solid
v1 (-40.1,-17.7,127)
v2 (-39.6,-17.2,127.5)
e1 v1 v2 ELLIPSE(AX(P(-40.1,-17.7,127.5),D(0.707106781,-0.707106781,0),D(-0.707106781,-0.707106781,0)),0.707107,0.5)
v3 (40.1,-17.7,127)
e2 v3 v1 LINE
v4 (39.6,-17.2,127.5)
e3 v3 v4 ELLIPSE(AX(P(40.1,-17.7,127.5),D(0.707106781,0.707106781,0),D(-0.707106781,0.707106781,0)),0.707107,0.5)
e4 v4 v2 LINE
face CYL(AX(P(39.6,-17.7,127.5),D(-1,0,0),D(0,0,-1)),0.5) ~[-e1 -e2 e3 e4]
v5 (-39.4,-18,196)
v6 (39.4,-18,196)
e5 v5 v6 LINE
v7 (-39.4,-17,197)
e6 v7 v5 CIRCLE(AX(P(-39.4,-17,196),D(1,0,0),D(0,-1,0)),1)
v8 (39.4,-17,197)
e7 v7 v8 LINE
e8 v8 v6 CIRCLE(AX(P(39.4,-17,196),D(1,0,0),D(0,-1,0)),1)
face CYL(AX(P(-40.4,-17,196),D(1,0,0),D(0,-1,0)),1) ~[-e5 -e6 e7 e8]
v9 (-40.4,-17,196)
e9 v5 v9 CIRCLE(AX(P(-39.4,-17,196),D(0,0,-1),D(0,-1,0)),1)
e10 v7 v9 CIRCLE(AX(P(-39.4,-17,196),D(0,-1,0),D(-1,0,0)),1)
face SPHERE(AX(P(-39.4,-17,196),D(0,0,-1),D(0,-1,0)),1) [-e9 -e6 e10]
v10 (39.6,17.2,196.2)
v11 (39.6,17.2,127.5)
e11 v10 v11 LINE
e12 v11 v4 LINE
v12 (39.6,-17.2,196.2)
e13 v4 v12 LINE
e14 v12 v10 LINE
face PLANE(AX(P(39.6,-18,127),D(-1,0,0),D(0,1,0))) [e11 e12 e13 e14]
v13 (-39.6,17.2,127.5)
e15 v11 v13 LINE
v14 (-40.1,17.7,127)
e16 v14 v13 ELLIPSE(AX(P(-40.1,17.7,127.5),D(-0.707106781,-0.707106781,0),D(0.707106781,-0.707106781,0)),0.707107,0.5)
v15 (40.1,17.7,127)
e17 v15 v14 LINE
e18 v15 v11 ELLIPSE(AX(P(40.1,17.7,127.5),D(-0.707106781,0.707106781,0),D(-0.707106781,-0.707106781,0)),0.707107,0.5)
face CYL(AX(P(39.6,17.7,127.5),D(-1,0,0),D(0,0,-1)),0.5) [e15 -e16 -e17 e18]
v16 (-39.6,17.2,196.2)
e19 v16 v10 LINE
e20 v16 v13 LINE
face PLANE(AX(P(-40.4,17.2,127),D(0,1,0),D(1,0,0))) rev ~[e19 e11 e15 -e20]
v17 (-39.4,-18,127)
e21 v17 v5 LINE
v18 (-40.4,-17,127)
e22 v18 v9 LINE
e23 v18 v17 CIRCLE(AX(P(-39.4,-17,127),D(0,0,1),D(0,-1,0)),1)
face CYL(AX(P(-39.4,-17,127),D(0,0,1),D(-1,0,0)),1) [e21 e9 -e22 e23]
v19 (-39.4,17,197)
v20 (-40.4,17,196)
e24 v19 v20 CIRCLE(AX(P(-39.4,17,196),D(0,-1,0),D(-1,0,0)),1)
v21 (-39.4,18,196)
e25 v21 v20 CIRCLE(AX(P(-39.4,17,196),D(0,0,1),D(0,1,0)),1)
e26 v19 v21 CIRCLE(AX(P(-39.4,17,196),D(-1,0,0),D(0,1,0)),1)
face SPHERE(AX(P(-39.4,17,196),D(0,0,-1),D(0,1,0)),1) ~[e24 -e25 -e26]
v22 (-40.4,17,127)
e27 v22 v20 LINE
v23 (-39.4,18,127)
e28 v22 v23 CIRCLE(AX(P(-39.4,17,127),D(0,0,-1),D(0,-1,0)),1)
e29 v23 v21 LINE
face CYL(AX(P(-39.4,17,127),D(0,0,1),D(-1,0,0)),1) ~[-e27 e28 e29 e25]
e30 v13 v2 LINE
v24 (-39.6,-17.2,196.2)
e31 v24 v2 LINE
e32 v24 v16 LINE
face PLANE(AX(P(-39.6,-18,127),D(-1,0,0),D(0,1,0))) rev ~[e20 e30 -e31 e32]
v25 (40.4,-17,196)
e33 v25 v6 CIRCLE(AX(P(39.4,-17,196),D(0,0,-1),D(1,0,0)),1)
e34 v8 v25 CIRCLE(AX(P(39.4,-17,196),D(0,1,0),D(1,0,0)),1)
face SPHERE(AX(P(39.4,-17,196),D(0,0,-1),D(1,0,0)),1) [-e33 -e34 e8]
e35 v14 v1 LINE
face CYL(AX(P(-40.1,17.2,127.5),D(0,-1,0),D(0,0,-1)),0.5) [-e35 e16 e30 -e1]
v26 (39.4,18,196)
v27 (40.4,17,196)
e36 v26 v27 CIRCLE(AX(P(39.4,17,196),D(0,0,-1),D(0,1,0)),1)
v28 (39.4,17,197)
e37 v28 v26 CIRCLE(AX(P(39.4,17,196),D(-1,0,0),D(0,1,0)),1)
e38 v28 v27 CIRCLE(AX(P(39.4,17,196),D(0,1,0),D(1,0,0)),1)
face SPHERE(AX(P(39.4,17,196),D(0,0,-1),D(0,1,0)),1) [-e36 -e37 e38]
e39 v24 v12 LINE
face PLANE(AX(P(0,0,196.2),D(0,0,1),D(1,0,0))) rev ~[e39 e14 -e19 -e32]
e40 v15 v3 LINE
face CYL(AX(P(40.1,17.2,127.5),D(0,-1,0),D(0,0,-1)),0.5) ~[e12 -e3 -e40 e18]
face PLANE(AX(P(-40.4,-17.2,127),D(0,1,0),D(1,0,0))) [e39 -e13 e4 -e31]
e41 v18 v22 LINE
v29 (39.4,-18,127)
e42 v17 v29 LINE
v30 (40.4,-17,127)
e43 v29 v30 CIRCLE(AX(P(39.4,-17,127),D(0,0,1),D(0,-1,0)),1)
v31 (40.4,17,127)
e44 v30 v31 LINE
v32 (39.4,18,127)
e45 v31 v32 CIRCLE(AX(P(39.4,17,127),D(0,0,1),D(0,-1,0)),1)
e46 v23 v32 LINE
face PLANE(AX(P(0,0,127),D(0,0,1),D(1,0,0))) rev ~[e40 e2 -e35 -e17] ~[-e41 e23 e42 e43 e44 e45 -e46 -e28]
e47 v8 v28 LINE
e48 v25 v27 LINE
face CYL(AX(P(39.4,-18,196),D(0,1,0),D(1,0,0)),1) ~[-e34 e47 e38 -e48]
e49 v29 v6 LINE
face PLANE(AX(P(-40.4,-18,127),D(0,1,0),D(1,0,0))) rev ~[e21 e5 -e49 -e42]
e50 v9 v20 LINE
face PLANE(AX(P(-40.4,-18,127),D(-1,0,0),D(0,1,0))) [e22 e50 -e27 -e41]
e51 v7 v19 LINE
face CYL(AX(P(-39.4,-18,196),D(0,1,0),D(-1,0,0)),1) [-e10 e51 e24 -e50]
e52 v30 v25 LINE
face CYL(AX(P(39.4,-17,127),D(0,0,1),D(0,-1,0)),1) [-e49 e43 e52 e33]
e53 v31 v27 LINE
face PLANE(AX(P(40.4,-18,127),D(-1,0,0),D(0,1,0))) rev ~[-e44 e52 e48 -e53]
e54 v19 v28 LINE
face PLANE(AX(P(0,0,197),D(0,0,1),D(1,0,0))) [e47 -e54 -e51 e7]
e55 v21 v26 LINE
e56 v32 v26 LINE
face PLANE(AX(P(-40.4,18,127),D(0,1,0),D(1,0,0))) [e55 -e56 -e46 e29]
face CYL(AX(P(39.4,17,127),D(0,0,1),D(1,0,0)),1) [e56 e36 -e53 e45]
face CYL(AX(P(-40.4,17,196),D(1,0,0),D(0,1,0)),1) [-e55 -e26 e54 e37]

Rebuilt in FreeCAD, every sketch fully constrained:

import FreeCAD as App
import Part
import Sketcher
from FreeCAD import Vector


def edges_at(feature, points):
    """Names of the edges that pass closest to the given points."""
    edges = feature.Shape.Edges
    near = lambda p: min(range(len(edges)), key=lambda i: edges[i].distToShape(Part.Vertex(*p))[0])
    return sorted({f"Edge{near(p) + 1}" for p in points})


def faces_at(feature, points):
    """Names of the faces that lie closest to the given points."""
    faces = feature.Shape.Faces
    near = lambda p: min(range(len(faces)), key=lambda i: faces[i].distToShape(Part.Vertex(*p))[0])
    return sorted({f"Face{near(p) + 1}" for p in points})

doc = App.newDocument("Part")
body = doc.addObject("PartDesign::Body", "Body")

# Sketch on XY plane
sketch1 = doc.addObject("Sketcher::SketchObject", "Sketch")
body.addObject(sketch1)
sketch1.AttachmentSupport = (doc.XY_Plane, [""])
sketch1.MapMode = "FlatFace"
sketch1.addGeometry(Part.LineSegment(Vector(-40, 18, 0), Vector(-40, -18, 0)), False)
sketch1.addGeometry(Part.LineSegment(Vector(-40, -18, 0), Vector(40, -18, 0)), False)
sketch1.addGeometry(Part.LineSegment(Vector(40, -18, 0), Vector(40, 18, 0)), False)
sketch1.addGeometry(Part.LineSegment(Vector(40, 18, 0), Vector(-40, 18, 0)), False)
sketch1.addConstraint(Sketcher.Constraint("Coincident", 0, 2, 1, 1))
sketch1.addConstraint(Sketcher.Constraint("Coincident", 1, 2, 2, 1))
sketch1.addConstraint(Sketcher.Constraint("Coincident", 2, 2, 3, 1))
sketch1.addConstraint(Sketcher.Constraint("Coincident", 3, 2, 0, 1))
sketch1.addConstraint(Sketcher.Constraint("Vertical", 0))
sketch1.addConstraint(Sketcher.Constraint("Horizontal", 1))
sketch1.addConstraint(Sketcher.Constraint("Vertical", 2))
sketch1.addConstraint(Sketcher.Constraint("Horizontal", 3))
sketch1.addConstraint(Sketcher.Constraint("Symmetric", 0, 2, 2, 2, -1, 1))
sketch1.addConstraint(Sketcher.Constraint("DistanceY", 0, 2, 0, 1, 36.0))
sketch1.addConstraint(Sketcher.Constraint("DistanceX", 1, 1, 1, 2, 80.8))
pad1 = doc.addObject("PartDesign::Pad", "Pad")
body.addObject(pad1)
pad1.Profile = sketch1
pad1.Length = 70
doc.recompute()

thickness = doc.addObject("PartDesign::Thickness", "Thickness")
body.addObject(thickness)
thickness.Base = (pad1, faces_at(pad1, [(0, 0, 0)]))
thickness.Value = 0.8
thickness.Reversed = True
thickness.Join = "Intersection"
doc.recompute()

fillet = doc.addObject("PartDesign::Fillet", "Fillet")
body.addObject(fillet)
fillet.Base = (thickness, edges_at(thickness, [
    (-40.4, 18, 35),
    (-40.4, -18, 35),
    (40.4, 18, 35),
    (0, 18, 70),
    (40.4, -18, 35),
    (40.4, 0, 70),
    (0, -18, 70),
    (-40.4, 0, 70),
]))
fillet.Radius = 1
doc.recompute()

fillet2 = doc.addObject("PartDesign::Fillet", "Fillet001")
body.addObject(fillet2)
fillet2.Base = (fillet, edges_at(fillet, [
    (0, -17.2, 0),
    (-39.6, 0, 0),
    (39.6, 0, 0),
    (0, 17.2, 0),
]))
fillet2.Radius = 0.5
body2 = doc.addObject("PartDesign::Body", "Body001")
doc.recompute()

body.Placement = App.Placement(Vector(0, 0, 127), App.Rotation(Vector(0, 0, 1), 0))
boolean = doc.addObject("PartDesign::Boolean", "Boolean")
body2.addObject(boolean)
boolean.Type = "Fuse"
boolean.addObjects([body])

doc.recompute()
